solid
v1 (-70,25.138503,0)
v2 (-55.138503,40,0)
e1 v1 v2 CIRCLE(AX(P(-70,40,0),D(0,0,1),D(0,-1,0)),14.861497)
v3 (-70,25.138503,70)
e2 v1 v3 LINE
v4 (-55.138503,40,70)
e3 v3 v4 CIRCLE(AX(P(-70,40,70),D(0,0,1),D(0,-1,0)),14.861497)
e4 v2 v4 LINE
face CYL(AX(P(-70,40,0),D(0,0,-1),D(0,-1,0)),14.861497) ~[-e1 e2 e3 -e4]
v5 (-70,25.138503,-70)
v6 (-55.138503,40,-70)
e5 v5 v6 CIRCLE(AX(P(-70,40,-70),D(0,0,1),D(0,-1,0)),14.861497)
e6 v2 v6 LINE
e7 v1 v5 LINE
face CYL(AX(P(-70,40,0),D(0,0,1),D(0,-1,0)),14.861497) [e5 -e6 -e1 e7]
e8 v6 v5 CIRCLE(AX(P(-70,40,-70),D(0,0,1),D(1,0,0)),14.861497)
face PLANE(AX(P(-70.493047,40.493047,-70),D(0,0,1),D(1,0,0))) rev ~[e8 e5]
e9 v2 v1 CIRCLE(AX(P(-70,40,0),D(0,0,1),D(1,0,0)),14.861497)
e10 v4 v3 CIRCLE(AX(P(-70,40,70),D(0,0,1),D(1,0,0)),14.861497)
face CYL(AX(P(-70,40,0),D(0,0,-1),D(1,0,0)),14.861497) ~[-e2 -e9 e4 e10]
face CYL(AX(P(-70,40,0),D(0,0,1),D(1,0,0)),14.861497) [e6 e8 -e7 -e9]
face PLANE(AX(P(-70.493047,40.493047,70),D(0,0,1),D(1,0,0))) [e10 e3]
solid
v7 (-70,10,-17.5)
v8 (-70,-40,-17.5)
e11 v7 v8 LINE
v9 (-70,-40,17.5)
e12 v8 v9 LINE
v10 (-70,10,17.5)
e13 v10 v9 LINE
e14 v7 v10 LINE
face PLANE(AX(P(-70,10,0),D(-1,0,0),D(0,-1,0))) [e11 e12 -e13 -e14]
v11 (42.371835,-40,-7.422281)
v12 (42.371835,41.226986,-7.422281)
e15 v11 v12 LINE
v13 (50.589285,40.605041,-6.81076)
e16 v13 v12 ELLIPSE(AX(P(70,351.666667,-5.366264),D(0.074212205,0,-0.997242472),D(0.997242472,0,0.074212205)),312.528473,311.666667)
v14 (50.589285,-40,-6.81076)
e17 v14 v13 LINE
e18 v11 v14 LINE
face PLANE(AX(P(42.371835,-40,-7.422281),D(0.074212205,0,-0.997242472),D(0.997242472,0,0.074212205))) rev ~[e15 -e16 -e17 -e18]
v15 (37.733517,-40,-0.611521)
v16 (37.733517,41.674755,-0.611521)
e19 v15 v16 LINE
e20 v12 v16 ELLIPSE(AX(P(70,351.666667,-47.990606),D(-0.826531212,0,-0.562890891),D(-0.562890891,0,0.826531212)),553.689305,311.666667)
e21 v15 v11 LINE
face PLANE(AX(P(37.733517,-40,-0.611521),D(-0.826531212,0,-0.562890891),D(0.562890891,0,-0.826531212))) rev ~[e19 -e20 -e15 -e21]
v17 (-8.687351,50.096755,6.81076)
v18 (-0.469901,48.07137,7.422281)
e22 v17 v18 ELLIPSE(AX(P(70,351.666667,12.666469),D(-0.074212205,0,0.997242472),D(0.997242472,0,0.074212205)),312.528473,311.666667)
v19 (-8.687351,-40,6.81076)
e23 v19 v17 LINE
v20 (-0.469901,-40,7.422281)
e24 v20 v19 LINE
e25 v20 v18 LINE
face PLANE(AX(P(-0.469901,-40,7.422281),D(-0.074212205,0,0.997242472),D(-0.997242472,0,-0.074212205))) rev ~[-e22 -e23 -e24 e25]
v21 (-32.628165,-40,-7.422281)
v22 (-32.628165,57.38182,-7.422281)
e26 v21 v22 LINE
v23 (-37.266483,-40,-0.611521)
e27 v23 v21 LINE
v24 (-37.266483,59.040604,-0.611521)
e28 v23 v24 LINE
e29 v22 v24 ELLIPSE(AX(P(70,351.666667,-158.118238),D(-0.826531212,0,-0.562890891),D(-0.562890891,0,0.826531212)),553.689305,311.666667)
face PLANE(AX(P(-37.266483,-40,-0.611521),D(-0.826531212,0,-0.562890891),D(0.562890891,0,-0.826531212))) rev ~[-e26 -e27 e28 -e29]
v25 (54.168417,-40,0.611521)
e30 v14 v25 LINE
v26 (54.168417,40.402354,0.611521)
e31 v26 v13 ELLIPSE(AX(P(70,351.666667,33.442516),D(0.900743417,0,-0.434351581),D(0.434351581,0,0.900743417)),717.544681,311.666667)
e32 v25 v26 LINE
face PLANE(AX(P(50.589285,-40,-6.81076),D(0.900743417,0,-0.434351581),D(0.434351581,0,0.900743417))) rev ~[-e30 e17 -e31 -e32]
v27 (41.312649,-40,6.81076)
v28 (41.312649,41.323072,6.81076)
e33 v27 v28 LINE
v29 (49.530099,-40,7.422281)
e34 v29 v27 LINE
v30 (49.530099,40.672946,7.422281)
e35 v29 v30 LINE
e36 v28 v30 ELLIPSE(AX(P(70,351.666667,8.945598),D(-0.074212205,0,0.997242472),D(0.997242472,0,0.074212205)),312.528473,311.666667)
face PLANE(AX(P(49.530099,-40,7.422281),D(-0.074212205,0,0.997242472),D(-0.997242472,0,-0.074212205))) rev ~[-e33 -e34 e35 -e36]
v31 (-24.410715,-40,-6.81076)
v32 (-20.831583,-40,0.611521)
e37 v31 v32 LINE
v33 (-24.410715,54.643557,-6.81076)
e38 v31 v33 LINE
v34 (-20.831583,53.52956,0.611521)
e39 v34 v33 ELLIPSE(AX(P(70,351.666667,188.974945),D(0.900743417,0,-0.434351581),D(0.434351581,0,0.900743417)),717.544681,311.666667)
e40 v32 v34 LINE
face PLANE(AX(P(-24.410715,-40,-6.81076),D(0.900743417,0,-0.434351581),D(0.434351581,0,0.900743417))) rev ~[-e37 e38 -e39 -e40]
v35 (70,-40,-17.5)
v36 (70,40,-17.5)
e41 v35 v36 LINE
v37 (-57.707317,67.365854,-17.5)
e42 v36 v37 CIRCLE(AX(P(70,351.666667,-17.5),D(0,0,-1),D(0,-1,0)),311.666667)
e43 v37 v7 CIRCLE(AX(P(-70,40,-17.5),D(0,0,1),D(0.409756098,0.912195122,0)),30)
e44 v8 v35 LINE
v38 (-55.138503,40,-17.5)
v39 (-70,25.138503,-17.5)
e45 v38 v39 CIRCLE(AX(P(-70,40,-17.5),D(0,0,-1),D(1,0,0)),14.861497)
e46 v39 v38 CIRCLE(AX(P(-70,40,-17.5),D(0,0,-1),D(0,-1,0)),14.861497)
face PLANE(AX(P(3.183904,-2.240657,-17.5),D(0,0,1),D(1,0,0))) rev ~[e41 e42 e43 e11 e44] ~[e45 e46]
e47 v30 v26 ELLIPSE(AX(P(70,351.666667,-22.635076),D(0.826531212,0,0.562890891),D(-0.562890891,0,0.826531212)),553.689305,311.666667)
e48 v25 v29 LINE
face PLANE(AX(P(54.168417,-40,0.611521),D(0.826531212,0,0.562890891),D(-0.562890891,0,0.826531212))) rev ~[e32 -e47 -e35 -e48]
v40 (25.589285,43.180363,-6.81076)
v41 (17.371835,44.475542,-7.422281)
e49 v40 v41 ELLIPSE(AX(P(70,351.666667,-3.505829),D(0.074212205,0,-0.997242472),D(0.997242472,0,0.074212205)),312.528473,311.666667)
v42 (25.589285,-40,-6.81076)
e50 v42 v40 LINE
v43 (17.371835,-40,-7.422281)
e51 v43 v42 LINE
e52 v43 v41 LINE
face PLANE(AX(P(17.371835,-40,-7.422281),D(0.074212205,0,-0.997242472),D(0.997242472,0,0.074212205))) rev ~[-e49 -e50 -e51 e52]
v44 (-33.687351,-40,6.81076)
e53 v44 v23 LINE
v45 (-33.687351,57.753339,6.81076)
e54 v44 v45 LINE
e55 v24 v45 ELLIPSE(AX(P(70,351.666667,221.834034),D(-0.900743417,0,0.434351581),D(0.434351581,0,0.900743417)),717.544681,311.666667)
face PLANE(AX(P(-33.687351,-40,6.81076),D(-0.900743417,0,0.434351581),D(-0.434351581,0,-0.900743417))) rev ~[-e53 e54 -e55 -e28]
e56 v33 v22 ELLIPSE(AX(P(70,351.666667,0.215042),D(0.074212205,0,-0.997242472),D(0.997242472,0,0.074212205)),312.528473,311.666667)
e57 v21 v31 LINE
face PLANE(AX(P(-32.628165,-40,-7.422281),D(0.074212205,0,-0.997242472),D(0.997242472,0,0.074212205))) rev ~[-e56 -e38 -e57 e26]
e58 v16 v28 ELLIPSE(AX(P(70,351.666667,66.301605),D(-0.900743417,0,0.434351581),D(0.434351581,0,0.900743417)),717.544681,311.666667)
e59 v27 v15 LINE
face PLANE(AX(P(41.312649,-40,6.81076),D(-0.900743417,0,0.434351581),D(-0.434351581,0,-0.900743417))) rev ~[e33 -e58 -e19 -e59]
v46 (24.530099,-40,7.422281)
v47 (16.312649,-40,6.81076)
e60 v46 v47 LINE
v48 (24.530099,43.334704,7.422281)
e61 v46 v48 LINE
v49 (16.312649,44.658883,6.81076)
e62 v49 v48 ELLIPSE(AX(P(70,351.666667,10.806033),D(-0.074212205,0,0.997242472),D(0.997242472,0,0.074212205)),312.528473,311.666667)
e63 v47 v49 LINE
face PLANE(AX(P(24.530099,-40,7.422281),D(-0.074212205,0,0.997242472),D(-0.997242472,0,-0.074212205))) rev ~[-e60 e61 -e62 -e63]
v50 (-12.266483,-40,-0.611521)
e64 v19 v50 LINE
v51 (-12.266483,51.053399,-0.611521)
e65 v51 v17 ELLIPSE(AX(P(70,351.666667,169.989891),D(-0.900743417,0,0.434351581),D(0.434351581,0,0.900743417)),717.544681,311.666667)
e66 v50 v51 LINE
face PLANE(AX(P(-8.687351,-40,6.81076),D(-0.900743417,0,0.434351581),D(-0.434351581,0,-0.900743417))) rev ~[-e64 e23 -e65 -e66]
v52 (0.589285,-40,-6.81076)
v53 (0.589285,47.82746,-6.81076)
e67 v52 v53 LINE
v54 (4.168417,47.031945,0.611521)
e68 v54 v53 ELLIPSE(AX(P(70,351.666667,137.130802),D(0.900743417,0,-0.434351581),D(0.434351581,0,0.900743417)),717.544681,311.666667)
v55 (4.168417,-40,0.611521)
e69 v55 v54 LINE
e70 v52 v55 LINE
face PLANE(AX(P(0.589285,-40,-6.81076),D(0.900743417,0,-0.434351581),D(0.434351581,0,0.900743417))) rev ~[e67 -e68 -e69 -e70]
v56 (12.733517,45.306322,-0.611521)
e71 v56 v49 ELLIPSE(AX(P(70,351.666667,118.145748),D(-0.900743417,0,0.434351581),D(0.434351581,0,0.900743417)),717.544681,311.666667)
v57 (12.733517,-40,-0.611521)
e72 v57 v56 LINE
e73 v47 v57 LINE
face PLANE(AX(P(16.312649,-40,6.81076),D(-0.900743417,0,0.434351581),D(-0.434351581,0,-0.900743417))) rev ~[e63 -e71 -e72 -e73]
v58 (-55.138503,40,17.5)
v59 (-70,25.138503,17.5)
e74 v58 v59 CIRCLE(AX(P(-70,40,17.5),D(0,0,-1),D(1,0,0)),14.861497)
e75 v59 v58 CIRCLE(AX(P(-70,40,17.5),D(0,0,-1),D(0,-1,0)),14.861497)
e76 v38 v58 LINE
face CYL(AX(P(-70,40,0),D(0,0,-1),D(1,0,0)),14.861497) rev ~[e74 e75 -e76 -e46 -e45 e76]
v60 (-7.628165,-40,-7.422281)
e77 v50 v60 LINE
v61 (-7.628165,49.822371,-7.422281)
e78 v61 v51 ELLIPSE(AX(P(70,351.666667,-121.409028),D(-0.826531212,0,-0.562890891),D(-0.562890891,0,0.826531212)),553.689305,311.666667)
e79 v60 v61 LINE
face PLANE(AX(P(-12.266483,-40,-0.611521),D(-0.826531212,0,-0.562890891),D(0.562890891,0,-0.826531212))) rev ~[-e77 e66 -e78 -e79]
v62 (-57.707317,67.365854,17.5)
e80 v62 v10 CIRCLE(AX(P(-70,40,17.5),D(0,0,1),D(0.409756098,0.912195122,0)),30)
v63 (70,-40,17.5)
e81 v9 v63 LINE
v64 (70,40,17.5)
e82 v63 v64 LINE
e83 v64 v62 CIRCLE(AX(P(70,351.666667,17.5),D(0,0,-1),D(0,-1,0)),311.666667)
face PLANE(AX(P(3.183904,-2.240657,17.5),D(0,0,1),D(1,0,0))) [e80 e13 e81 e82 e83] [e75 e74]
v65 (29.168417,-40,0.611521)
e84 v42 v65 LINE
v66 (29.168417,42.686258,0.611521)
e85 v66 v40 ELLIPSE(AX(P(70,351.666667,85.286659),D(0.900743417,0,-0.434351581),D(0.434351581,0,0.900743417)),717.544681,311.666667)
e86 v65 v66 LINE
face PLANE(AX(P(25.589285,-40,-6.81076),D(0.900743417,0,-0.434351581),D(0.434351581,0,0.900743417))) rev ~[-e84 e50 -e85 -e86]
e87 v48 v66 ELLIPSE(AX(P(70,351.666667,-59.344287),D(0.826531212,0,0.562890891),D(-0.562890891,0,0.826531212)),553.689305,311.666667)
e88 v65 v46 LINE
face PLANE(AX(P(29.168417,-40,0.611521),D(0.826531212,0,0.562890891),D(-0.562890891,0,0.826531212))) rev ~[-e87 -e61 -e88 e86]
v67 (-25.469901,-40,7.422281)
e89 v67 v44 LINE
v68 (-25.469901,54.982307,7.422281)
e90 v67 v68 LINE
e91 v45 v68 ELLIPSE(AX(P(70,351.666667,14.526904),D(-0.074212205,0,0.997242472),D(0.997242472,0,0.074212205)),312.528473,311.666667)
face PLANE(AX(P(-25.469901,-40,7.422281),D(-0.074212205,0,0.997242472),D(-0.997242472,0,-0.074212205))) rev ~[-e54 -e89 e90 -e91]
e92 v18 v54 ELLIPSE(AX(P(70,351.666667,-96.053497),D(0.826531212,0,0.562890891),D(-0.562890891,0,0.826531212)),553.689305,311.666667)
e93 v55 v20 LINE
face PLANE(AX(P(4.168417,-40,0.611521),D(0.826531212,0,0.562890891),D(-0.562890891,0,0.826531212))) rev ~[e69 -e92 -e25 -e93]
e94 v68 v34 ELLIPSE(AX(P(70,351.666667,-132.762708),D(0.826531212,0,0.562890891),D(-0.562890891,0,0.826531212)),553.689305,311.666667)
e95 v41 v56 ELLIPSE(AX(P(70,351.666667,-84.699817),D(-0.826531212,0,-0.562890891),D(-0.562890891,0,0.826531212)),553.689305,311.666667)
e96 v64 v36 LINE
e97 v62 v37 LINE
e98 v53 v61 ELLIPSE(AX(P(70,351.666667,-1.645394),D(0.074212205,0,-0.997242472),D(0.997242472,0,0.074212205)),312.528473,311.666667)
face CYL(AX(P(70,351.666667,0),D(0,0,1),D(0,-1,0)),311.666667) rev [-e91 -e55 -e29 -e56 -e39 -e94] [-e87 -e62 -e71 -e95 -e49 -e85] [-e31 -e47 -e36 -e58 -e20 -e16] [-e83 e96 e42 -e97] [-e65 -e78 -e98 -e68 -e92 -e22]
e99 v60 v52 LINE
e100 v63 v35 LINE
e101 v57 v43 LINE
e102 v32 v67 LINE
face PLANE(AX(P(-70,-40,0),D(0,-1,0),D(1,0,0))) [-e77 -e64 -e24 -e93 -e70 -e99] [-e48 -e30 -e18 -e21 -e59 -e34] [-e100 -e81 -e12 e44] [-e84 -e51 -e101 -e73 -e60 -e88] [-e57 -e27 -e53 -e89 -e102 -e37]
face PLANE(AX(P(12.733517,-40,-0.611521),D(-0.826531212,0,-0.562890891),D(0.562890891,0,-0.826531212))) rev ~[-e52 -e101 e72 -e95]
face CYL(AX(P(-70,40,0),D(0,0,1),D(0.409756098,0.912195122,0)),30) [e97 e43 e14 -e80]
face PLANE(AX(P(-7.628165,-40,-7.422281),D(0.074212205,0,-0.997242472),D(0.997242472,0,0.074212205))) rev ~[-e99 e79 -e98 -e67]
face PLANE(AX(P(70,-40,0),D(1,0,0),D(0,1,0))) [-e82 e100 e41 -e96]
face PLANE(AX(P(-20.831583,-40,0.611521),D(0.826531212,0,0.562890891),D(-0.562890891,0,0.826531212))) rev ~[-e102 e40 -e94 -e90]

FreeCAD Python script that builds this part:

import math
import FreeCAD as App
import Part
import Sketcher

doc = App.newDocument("Part")
body = doc.addObject("PartDesign::Body", "Body")

# Sketch on XY plane
sketch1 = doc.addObject("Sketcher::SketchObject", "Sketch")
body.addObject(sketch1)
sketch1.AttachmentSupport = (doc.XY_Plane, [""])
sketch1.MapMode = "FlatFace"
sketch1.addGeometry(Part.ArcOfCircle(Part.Circle(App.Vector(-70, 40, 0), App.Vector(0, 0, 1), 30), math.radians(66), math.radians(270)), False)
sketch1.addGeometry(Part.LineSegment(App.Vector(-70, 10, 0), App.Vector(-70, -40, 0)), False)
sketch1.addGeometry(Part.LineSegment(App.Vector(-70, -40, 0), App.Vector(70, -40, 0)), False)
sketch1.addGeometry(Part.LineSegment(App.Vector(70, -40, 0), App.Vector(70, 40, 0)), False)
sketch1.addGeometry(Part.ArcOfCircle(Part.Circle(App.Vector(70, 352, 0), App.Vector(0, 0, 1), 312), math.radians(-114), math.radians(-90)), False)
sketch1.addGeometry(Part.ArcOfCircle(Part.Circle(App.Vector(-70, 40, 0), App.Vector(0, 0, 1), 15), math.radians(0), math.radians(270)), False)
sketch1.addGeometry(Part.ArcOfCircle(Part.Circle(App.Vector(-70, 40, 0), App.Vector(0, 0, 1), 15), math.radians(-90), math.radians(0)), False)
sketch1.addConstraint(Sketcher.Constraint("Coincident", 0, 2, 1, 1))
sketch1.addConstraint(Sketcher.Constraint("Coincident", 1, 2, 2, 1))
sketch1.addConstraint(Sketcher.Constraint("Coincident", 2, 2, 3, 1))
sketch1.addConstraint(Sketcher.Constraint("Coincident", 3, 2, 4, 2))
sketch1.addConstraint(Sketcher.Constraint("Tangent", 4, 1, 0, 1))
sketch1.addConstraint(Sketcher.Constraint("Tangent", 5, 1, 6, 2))
sketch1.addConstraint(Sketcher.Constraint("Coincident", 6, 1, 5, 2))
sketch1.addConstraint(Sketcher.Constraint("Vertical", 1))
sketch1.addConstraint(Sketcher.Constraint("Horizontal", 2))
sketch1.addConstraint(Sketcher.Constraint("Vertical", 3))
sketch1.addConstraint(Sketcher.Constraint("Coincident", 5, 3, 0, 3))
sketch1.addConstraint(Sketcher.Constraint("Symmetric", 1, 2, 3, 2, -1, 1))
sketch1.addConstraint(Sketcher.Constraint("Horizontal", 6, 3, 3, 2))
sketch1.addConstraint(Sketcher.Constraint("Horizontal", 3, 2, 5, 1))
sketch1.addConstraint(Sketcher.Constraint("Vertical", 6, 3, 0, 2))
sketch1.addConstraint(Sketcher.Constraint("Vertical", 4, 3, 2, 2))
sketch1.addConstraint(Sketcher.Constraint("Vertical", 1, 2, 6, 1))
sketch1.addConstraint(Sketcher.Constraint("Radius", 0, 30.0))
sketch1.addConstraint(Sketcher.Constraint("DistanceX", 2, 1, 2, 2, 140.0))
sketch1.addConstraint(Sketcher.Constraint("DistanceY", 1, 2, 1, 1, 50.0))
sketch1.addConstraint(Sketcher.Constraint("Radius", 5, 14.861497))
pad1 = doc.addObject("PartDesign::Pad", "Pad")
body.addObject(pad1)
pad1.Profile = sketch1
pad1.Length = 35
pad1.Midplane = True

# Sketch on XZ plane
sketch2 = doc.addObject("Sketcher::SketchObject", "Sketch001")
body.addObject(sketch2)
sketch2.AttachmentSupport = (doc.XZ_Plane, [""])
sketch2.MapMode = "FlatFace"
sketch2.AttachmentOffset = App.Placement(App.Vector(0, 0, 40), App.Rotation())
sketch2.addGeometry(Part.LineSegment(App.Vector(24.530099, 7.422281, 0), App.Vector(16.312649, 6.81076, 0)), False)
sketch2.addGeometry(Part.LineSegment(App.Vector(16.312649, 6.81076, 0), App.Vector(12.733517, -0.611521, 0)), False)
sketch2.addGeometry(Part.LineSegment(App.Vector(12.733517, -0.611521, 0), App.Vector(17.371835, -7.422281, 0)), False)
sketch2.addGeometry(Part.LineSegment(App.Vector(17.371835, -7.422281, 0), App.Vector(25.589285, -6.81076, 0)), False)
sketch2.addGeometry(Part.LineSegment(App.Vector(25.589285, -6.81076, 0), App.Vector(29.168417, 0.611521, 0)), False)
sketch2.addGeometry(Part.LineSegment(App.Vector(29.168417, 0.611521, 0), App.Vector(24.530099, 7.422281, 0)), False)
sketch2.addGeometry(Part.LineSegment(App.Vector(49.530099, 7.422281, 0), App.Vector(41.312649, 6.81076, 0)), False)
sketch2.addGeometry(Part.LineSegment(App.Vector(41.312649, 6.81076, 0), App.Vector(37.733517, -0.611521, 0)), False)
sketch2.addGeometry(Part.LineSegment(App.Vector(37.733517, -0.611521, 0), App.Vector(42.371835, -7.422281, 0)), False)
sketch2.addGeometry(Part.LineSegment(App.Vector(42.371835, -7.422281, 0), App.Vector(50.589285, -6.81076, 0)), False)
sketch2.addGeometry(Part.LineSegment(App.Vector(50.589285, -6.81076, 0), App.Vector(54.168417, 0.611521, 0)), False)
sketch2.addGeometry(Part.LineSegment(App.Vector(54.168417, 0.611521, 0), App.Vector(49.530099, 7.422281, 0)), False)
sketch2.addGeometry(Part.LineSegment(App.Vector(-0.469901, 7.422281, 0), App.Vector(-8.687351, 6.81076, 0)), False)
sketch2.addGeometry(Part.LineSegment(App.Vector(-8.687351, 6.81076, 0), App.Vector(-12.266483, -0.611521, 0)), False)
sketch2.addGeometry(Part.LineSegment(App.Vector(-12.266483, -0.611521, 0), App.Vector(-7.628165, -7.422281, 0)), False)
sketch2.addGeometry(Part.LineSegment(App.Vector(-7.628165, -7.422281, 0), App.Vector(0.589285, -6.81076, 0)), False)
sketch2.addGeometry(Part.LineSegment(App.Vector(0.589285, -6.81076, 0), App.Vector(4.168417, 0.611521, 0)), False)
sketch2.addGeometry(Part.LineSegment(App.Vector(4.168417, 0.611521, 0), App.Vector(-0.469901, 7.422281, 0)), False)
sketch2.addGeometry(Part.LineSegment(App.Vector(-32.628165, -7.422281, 0), App.Vector(-24.410715, -6.81076, 0)), False)
sketch2.addGeometry(Part.LineSegment(App.Vector(-24.410715, -6.81076, 0), App.Vector(-20.831583, 0.611521, 0)), False)
sketch2.addGeometry(Part.LineSegment(App.Vector(-20.831583, 0.611521, 0), App.Vector(-25.469901, 7.422281, 0)), False)
sketch2.addGeometry(Part.LineSegment(App.Vector(-25.469901, 7.422281, 0), App.Vector(-33.687351, 6.81076, 0)), False)
sketch2.addGeometry(Part.LineSegment(App.Vector(-33.687351, 6.81076, 0), App.Vector(-37.266483, -0.611521, 0)), False)
sketch2.addGeometry(Part.LineSegment(App.Vector(-37.266483, -0.611521, 0), App.Vector(-32.628165, -7.422281, 0)), False)
sketch2.addConstraint(Sketcher.Constraint("Coincident", 0, 2, 1, 1))
sketch2.addConstraint(Sketcher.Constraint("Coincident", 1, 2, 2, 1))
sketch2.addConstraint(Sketcher.Constraint("Coincident", 2, 2, 3, 1))
sketch2.addConstraint(Sketcher.Constraint("Coincident", 3, 2, 4, 1))
sketch2.addConstraint(Sketcher.Constraint("Coincident", 4, 2, 5, 1))
sketch2.addConstraint(Sketcher.Constraint("Coincident", 5, 2, 0, 1))
sketch2.addConstraint(Sketcher.Constraint("Coincident", 6, 2, 7, 1))
sketch2.addConstraint(Sketcher.Constraint("Coincident", 7, 2, 8, 1))
sketch2.addConstraint(Sketcher.Constraint("Coincident", 8, 2, 9, 1))
sketch2.addConstraint(Sketcher.Constraint("Coincident", 9, 2, 10, 1))
sketch2.addConstraint(Sketcher.Constraint("Coincident", 10, 2, 11, 1))
sketch2.addConstraint(Sketcher.Constraint("Coincident", 11, 2, 6, 1))
sketch2.addConstraint(Sketcher.Constraint("Coincident", 12, 2, 13, 1))
sketch2.addConstraint(Sketcher.Constraint("Coincident", 13, 2, 14, 1))
sketch2.addConstraint(Sketcher.Constraint("Coincident", 14, 2, 15, 1))
sketch2.addConstraint(Sketcher.Constraint("Coincident", 15, 2, 16, 1))
sketch2.addConstraint(Sketcher.Constraint("Coincident", 16, 2, 17, 1))
sketch2.addConstraint(Sketcher.Constraint("Coincident", 17, 2, 12, 1))
sketch2.addConstraint(Sketcher.Constraint("Coincident", 18, 2, 19, 1))
sketch2.addConstraint(Sketcher.Constraint("Coincident", 19, 2, 20, 1))
sketch2.addConstraint(Sketcher.Constraint("Coincident", 20, 2, 21, 1))
sketch2.addConstraint(Sketcher.Constraint("Coincident", 21, 2, 22, 1))
sketch2.addConstraint(Sketcher.Constraint("Coincident", 22, 2, 23, 1))
sketch2.addConstraint(Sketcher.Constraint("Coincident", 23, 2, 18, 1))
sketch2.addConstraint(Sketcher.Constraint("Parallel", 0, 3))
sketch2.addConstraint(Sketcher.Constraint("Parallel", 1, 4))
sketch2.addConstraint(Sketcher.Constraint("Parallel", 2, 5))
sketch2.addConstraint(Sketcher.Constraint("Parallel", 3, 6))
sketch2.addConstraint(Sketcher.Constraint("Parallel", 4, 7))
sketch2.addConstraint(Sketcher.Constraint("Parallel", 5, 8))
sketch2.addConstraint(Sketcher.Constraint("Parallel", 6, 9))
sketch2.addConstraint(Sketcher.Constraint("Parallel", 7, 10))
sketch2.addConstraint(Sketcher.Constraint("Parallel", 8, 11))
sketch2.addConstraint(Sketcher.Constraint("Parallel", 9, 12))
sketch2.addConstraint(Sketcher.Constraint("Parallel", 10, 13))
sketch2.addConstraint(Sketcher.Constraint("Parallel", 11, 14))
sketch2.addConstraint(Sketcher.Constraint("Parallel", 12, 15))
sketch2.addConstraint(Sketcher.Constraint("Parallel", 13, 16))
sketch2.addConstraint(Sketcher.Constraint("Parallel", 14, 17))
sketch2.addConstraint(Sketcher.Constraint("Parallel", 15, 18))
sketch2.addConstraint(Sketcher.Constraint("Parallel", 16, 19))
sketch2.addConstraint(Sketcher.Constraint("Parallel", 17, 20))
sketch2.addConstraint(Sketcher.Constraint("Parallel", 18, 21))
sketch2.addConstraint(Sketcher.Constraint("Parallel", 19, 22))
sketch2.addConstraint(Sketcher.Constraint("Parallel", 20, 23))
sketch2.addConstraint(Sketcher.Constraint("Horizontal", 0, 2, 6, 2))
sketch2.addConstraint(Sketcher.Constraint("Horizontal", 1, 2, 7, 2))
sketch2.addConstraint(Sketcher.Constraint("Horizontal", 2, 2, 8, 2))
sketch2.addConstraint(Sketcher.Constraint("Horizontal", 3, 2, 9, 2))
sketch2.addConstraint(Sketcher.Constraint("Horizontal", 4, 2, 10, 2))
sketch2.addConstraint(Sketcher.Constraint("Horizontal", 6, 2, 12, 2))
sketch2.addConstraint(Sketcher.Constraint("Horizontal", 7, 2, 13, 2))
sketch2.addConstraint(Sketcher.Constraint("Horizontal", 8, 2, 14, 2))
sketch2.addConstraint(Sketcher.Constraint("Horizontal", 9, 2, 15, 2))
sketch2.addConstraint(Sketcher.Constraint("Horizontal", 10, 2, 16, 2))
sketch2.addConstraint(Sketcher.Constraint("Horizontal", 15, 2, 18, 2))
sketch2.addConstraint(Sketcher.Constraint("Horizontal", 16, 2, 19, 2))
sketch2.addConstraint(Sketcher.Constraint("Horizontal", 17, 2, 20, 2))
sketch2.addConstraint(Sketcher.Constraint("Horizontal", 12, 2, 21, 2))
sketch2.addConstraint(Sketcher.Constraint("Horizontal", 13, 2, 22, 2))
sketch2.addConstraint(Sketcher.Constraint("Equal", 0, 1))
sketch2.addConstraint(Sketcher.Constraint("Equal", 1, 2))
sketch2.addConstraint(Sketcher.Constraint("Equal", 2, 3))
sketch2.addConstraint(Sketcher.Constraint("DistanceX", 0, 2, 6, 2, 25.0))
sketch2.addConstraint(Sketcher.Constraint("DistanceX", 12, 2, 0, 2, 25.0))
sketch2.addConstraint(Sketcher.Constraint("DistanceX", 18, 2, 15, 2, 25.0))
sketch2.addConstraint(Sketcher.Constraint("DistanceX", -1, 1, 5, 2, 24.530099))
sketch2.addConstraint(Sketcher.Constraint("DistanceX", 1, 2, 4, 2, 16.4349))
sketch2.addConstraint(Sketcher.Constraint("DistanceX", -1, 1, 0, 2, 16.312649))
sketch2.addConstraint(Sketcher.Constraint("DistanceY", -1, 1, 0, 2, 6.81076))
sketch2.addConstraint(Sketcher.Constraint("DistanceY", 1, 2, -1, 1, 0.611521))
sketch2.addConstraint(Sketcher.Constraint("DistanceY", 2, 2, -1, 1, 7.422281))
pocket1 = doc.addObject("PartDesign::Pocket", "Pocket")
body.addObject(pocket1)
pocket1.Profile = sketch2
pocket1.Type = "ThroughAll"
body2 = doc.addObject("PartDesign::Body", "Body001")

# Sketch on XY plane
sketch3 = doc.addObject("Sketcher::SketchObject", "Sketch002")
body2.addObject(sketch3)
sketch3.AttachmentSupport = (doc.getObject("XY_Plane001"), [""])
sketch3.MapMode = "FlatFace"
sketch3.addGeometry(Part.ArcOfCircle(Part.Circle(App.Vector(-70, 40, 0), App.Vector(0, 0, 1), 15), math.radians(0), math.radians(270)), False)
sketch3.addGeometry(Part.ArcOfCircle(Part.Circle(App.Vector(-70, 40, 0), App.Vector(0, 0, 1), 15), math.radians(-90), math.radians(0)), False)
sketch3.addConstraint(Sketcher.Constraint("Tangent", 0, 1, 1, 2))
sketch3.addConstraint(Sketcher.Constraint("Coincident", 1, 1, 0, 2))
sketch3.addConstraint(Sketcher.Constraint("Horizontal", 1, 3, 0, 1))
sketch3.addConstraint(Sketcher.Constraint("Vertical", 0, 3, 1, 1))
sketch3.addConstraint(Sketcher.Constraint("DistanceX", 0, 3, -1, 1, 70.0))
sketch3.addConstraint(Sketcher.Constraint("DistanceY", -1, 1, 0, 3, 40.0))
sketch3.addConstraint(Sketcher.Constraint("Radius", 0, 14.861497))
pad2 = doc.addObject("PartDesign::Pad", "Pad001")
body2.addObject(pad2)
pad2.Profile = sketch3
pad2.Length = 140
pad2.Midplane = True

doc.recompute()
